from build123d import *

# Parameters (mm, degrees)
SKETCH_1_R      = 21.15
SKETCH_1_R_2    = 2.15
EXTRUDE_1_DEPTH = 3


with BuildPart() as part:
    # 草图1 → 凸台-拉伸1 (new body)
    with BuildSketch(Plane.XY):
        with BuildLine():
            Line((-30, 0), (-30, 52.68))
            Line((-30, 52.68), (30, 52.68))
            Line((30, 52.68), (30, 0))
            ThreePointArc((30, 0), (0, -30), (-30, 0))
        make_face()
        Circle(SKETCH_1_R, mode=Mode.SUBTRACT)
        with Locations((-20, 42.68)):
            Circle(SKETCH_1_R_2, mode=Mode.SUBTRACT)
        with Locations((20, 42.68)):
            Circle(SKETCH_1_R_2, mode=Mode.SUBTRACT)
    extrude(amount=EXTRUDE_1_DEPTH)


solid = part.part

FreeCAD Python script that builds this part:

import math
import FreeCAD as App
import Part
import Sketcher

doc = App.newDocument("Part")
params = doc.addObject("Spreadsheet::Sheet", "Params")
for row, (alias, value) in enumerate([
    ("sketch1_radius", "30 mm"),
    ("sketch1_diameter", "42.3 mm"),
    ("sketch1_diameter2", "4.3 mm"),
    ("sketch1_height", "52.68 mm"),
    ("pad1_length", "3 mm"),
], start=1):
    params.set(f"A{row}", alias)
    params.set(f"B{row}", "=" + value)
    params.setAlias(f"B{row}", alias)

body = doc.addObject("PartDesign::Body", "Body")

sketch1 = body.newObject("Sketcher::SketchObject", "Sketch")
sketch1.AttachmentSupport = (doc.getObject("XY_Plane"), [""])
sketch1.MapMode = "FlatFace"
sketch1.addGeometry(Part.LineSegment(App.Vector(-30, 52.7, 0), App.Vector(-30, 0, 0)), False)
sketch1.addGeometry(Part.ArcOfCircle(Part.Circle(App.Vector(0, 0, 0), App.Vector(0, 0, 1), 30), math.radians(180), math.radians(360)), False)
sketch1.addGeometry(Part.LineSegment(App.Vector(30, 0, 0), App.Vector(30, 52.7, 0)), False)
sketch1.addGeometry(Part.LineSegment(App.Vector(30, 52.7, 0), App.Vector(-30, 52.7, 0)), False)
sketch1.addGeometry(Part.Circle(App.Vector(0, 0, 0), App.Vector(0, 0, 1), 21.1), False)
sketch1.addGeometry(Part.Circle(App.Vector(20, 42.7, 0), App.Vector(0, 0, 1), 2.1), False)
sketch1.addGeometry(Part.Circle(App.Vector(-20, 42.7, 0), App.Vector(0, 0, 1), 2.1), False)
sketch1.addConstraint(Sketcher.Constraint("Tangent", 0, 2, 1, 1))
sketch1.addConstraint(Sketcher.Constraint("Tangent", 1, 2, 2, 1))
sketch1.addConstraint(Sketcher.Constraint("Coincident", 2, 2, 3, 1))
sketch1.addConstraint(Sketcher.Constraint("Coincident", 3, 2, 0, 1))
sketch1.addConstraint(Sketcher.Constraint("Vertical", 0))
sketch1.addConstraint(Sketcher.Constraint("Vertical", 2))
sketch1.addConstraint(Sketcher.Constraint("Horizontal", 3))
sketch1.addConstraint(Sketcher.Constraint("Coincident", 1, 3, -1, 1))
sketch1.addConstraint(Sketcher.Constraint("Coincident", 4, 3, -1, 1))
sketch1.addConstraint(Sketcher.Constraint("Equal", 5, 6))
sketch1.addConstraint(Sketcher.Constraint("Symmetric", 5, 3, 6, 3, -2))
sketch1.addConstraint(Sketcher.Constraint("Radius", 1, 30.0))
sketch1.addConstraint(Sketcher.Constraint("Diameter", 4, 42.3))
sketch1.addConstraint(Sketcher.Constraint("Diameter", 5, 4.3))
sketch1.addConstraint(Sketcher.Constraint("DistanceX", -1, 1, 5, 3, 20.0))
sketch1.addConstraint(Sketcher.Constraint("DistanceY", 5, 3, 2, 2, 10.0))
sketch1.addConstraint(Sketcher.Constraint("DistanceY", 0, 2, 0, 1, 52.68))
sketch1.setExpression("Constraints[11]", "Params.sketch1_radius")
sketch1.setExpression("Constraints[12]", "Params.sketch1_diameter")
sketch1.setExpression("Constraints[13]", "Params.sketch1_diameter2")
sketch1.setExpression("Constraints[16]", "Params.sketch1_height")
pad1 = body.newObject("PartDesign::Pad", "Pad")
pad1.Profile = sketch1
pad1.setExpression("Length", "Params.pad1_length")

doc.recompute()
